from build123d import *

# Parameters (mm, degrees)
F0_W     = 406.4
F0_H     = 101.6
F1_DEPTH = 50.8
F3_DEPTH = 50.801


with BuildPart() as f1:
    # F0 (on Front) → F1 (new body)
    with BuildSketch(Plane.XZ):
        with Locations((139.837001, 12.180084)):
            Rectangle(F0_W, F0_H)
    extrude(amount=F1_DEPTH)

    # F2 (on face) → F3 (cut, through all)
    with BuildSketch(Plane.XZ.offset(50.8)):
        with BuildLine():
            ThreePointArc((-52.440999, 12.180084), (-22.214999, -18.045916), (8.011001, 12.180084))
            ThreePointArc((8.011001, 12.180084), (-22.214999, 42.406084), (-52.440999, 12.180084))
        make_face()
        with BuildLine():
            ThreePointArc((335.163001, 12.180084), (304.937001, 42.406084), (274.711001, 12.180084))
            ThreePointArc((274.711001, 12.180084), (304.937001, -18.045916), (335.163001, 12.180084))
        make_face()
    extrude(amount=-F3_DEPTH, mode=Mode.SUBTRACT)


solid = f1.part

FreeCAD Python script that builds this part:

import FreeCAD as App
import Part
import Sketcher
from FreeCAD import Vector
Q = App.Units.Quantity

doc = App.newDocument("Part")
body = doc.addObject("PartDesign::Body", "Body")

sketch1 = body.newObject("Sketcher::SketchObject", "Sketch")
sketch1.AttachmentSupport = (doc.getObject("XZ_Plane"), [""])
sketch1.MapMode = "FlatFace"
sketch1.addGeometry([
    Part.LineSegment(Vector(-63, 63, 0), Vector(-63, -39, 0)),
    Part.LineSegment(Vector(-63, -39, 0), Vector(343, -39, 0)),
    Part.LineSegment(Vector(343, -39, 0), Vector(343, 63, 0)),
    Part.LineSegment(Vector(343, 63, 0), Vector(-63, 63, 0)),
], False)
sketch1.addConstraint([
    Sketcher.Constraint("Coincident", 0, 2, 1, 1),
    Sketcher.Constraint("Coincident", 1, 2, 2, 1),
    Sketcher.Constraint("Coincident", 2, 2, 3, 1),
    Sketcher.Constraint("Coincident", 3, 2, 0, 1),
    Sketcher.Constraint("Vertical", 0),
    Sketcher.Constraint("Horizontal", 1),
    Sketcher.Constraint("Vertical", 2),
    Sketcher.Constraint("Horizontal", 3),
    Sketcher.Constraint("DistanceX", 1, 1, 1, 2, Q("16 in")),
    Sketcher.Constraint("DistanceY", 0, 2, 0, 1, Q("4 in")),
    Sketcher.Constraint("DistanceX", 0, 2, -1, 1, Q("63.362999 mm")),
    Sketcher.Constraint("DistanceY", 0, 2, -1, 1, Q("38.619916 mm")),
])
pad1 = body.newObject("PartDesign::Pad", "Pad")
pad1.Profile = sketch1
pad1.Length = Q("2 in")

sketch2 = body.newObject("Sketcher::SketchObject", "Sketch001")
sketch2.AttachmentSupport = (doc.getObject("XZ_Plane"), [""])
sketch2.MapMode = "FlatFace"
sketch2.AttachmentOffset = App.Placement(Vector(0, 0, 2 * 25.4), App.Rotation())
sketch2.addGeometry([
    Part.Circle(Vector(-22, 12, 0), Vector(0, 0, 1), 30),
    Part.Circle(Vector(305, 12, 0), Vector(0, 0, 1), 30),
], False)
sketch2.addConstraint([
    Sketcher.Constraint("Equal", 0, 1),
    Sketcher.Constraint("Horizontal", 0, 3, 1, 3),
    Sketcher.Constraint("Diameter", 0, Q("2.38 in")),
    Sketcher.Constraint("DistanceX", 0, 3, 1, 3, Q("12.88 in")),
    Sketcher.Constraint("DistanceX", 0, 3, -1, 1, Q("22.214999 mm")),
    Sketcher.Constraint("DistanceY", -1, 1, 0, 3, Q("12.180084 mm")),
])
pocket1 = body.newObject("PartDesign::Pocket", "Pocket")
pocket1.Profile = sketch2
pocket1.Type = "ThroughAll"

doc.recompute()
